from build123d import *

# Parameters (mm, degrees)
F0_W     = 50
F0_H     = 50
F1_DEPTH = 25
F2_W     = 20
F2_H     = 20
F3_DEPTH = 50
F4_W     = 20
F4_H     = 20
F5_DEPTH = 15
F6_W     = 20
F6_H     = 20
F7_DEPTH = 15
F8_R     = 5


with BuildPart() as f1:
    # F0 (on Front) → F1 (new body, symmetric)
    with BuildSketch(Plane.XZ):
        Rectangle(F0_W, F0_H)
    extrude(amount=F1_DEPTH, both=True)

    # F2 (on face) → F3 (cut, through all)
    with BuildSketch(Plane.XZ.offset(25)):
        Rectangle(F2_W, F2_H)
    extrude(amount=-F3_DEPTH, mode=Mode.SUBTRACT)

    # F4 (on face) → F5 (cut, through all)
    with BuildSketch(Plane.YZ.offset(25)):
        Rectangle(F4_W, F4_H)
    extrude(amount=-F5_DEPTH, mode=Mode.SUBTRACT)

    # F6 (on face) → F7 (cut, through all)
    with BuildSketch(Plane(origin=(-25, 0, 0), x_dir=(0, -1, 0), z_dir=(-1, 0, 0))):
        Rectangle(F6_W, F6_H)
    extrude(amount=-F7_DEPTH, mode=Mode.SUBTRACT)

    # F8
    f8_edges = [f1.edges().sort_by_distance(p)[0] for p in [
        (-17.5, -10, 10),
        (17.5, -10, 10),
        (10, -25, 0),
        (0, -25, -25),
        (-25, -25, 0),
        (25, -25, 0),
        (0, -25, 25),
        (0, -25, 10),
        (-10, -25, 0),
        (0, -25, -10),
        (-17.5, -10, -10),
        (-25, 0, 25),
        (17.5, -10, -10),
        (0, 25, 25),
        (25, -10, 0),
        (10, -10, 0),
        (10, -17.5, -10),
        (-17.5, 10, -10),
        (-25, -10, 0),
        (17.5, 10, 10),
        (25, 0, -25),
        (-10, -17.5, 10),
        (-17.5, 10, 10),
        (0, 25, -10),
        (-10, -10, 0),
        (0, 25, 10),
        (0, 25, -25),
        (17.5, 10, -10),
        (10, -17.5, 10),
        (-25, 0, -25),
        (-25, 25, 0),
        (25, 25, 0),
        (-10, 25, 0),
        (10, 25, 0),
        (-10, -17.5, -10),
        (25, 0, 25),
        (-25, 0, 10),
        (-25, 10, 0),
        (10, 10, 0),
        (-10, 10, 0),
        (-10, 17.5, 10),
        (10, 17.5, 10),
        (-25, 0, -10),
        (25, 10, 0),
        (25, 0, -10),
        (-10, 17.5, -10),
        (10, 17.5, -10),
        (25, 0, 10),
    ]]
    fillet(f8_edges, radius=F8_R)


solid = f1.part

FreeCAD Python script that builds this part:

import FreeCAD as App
import Part
import Sketcher

V = App.Vector
Q = App.Units.Quantity

doc = App.newDocument("Part")
body = doc.addObject("PartDesign::Body", "Body")

# Sketch on XZ plane
sketch1 = body.newObject("Sketcher::SketchObject", "Sketch")
sketch1.AttachmentSupport = (doc.getObject("XZ_Plane"), [""])
sketch1.MapMode = "FlatFace"
sketch1.addGeometry([
    Part.LineSegment(V(-25, 25, 0), V(-25, -25, 0)),
    Part.LineSegment(V(-25, -25, 0), V(25, -25, 0)),
    Part.LineSegment(V(25, -25, 0), V(25, 25, 0)),
    Part.LineSegment(V(25, 25, 0), V(-25, 25, 0)),
], False)
sketch1.addConstraint([
    Sketcher.Constraint("Coincident", 0, 2, 1, 1),
    Sketcher.Constraint("Coincident", 1, 2, 2, 1),
    Sketcher.Constraint("Coincident", 2, 2, 3, 1),
    Sketcher.Constraint("Coincident", 3, 2, 0, 1),
    Sketcher.Constraint("Vertical", 0),
    Sketcher.Constraint("Horizontal", 1),
    Sketcher.Constraint("Vertical", 2),
    Sketcher.Constraint("Horizontal", 3),
    Sketcher.Constraint("Symmetric", 0, 2, 2, 2, -1, 1),
    Sketcher.Constraint("Equal", 3, 0),
    Sketcher.Constraint("DistanceX", 1, 1, 1, 2, Q("50 mm")),
])
pad1 = body.newObject("PartDesign::Pad", "Pad")
pad1.Profile = sketch1
pad1.Length = 50
pad1.Midplane = True

# Sketch on XZ plane
sketch2 = body.newObject("Sketcher::SketchObject", "Sketch001")
sketch2.AttachmentSupport = (doc.getObject("XZ_Plane"), [""])
sketch2.MapMode = "FlatFace"
sketch2.AttachmentOffset = App.Placement(V(0, 0, 25), App.Rotation())
sketch2.addGeometry([
    Part.LineSegment(V(-10, 10, 0), V(-10, -10, 0)),
    Part.LineSegment(V(-10, -10, 0), V(10, -10, 0)),
    Part.LineSegment(V(10, -10, 0), V(10, 10, 0)),
    Part.LineSegment(V(10, 10, 0), V(-10, 10, 0)),
], False)
sketch2.addConstraint([
    Sketcher.Constraint("Coincident", 0, 2, 1, 1),
    Sketcher.Constraint("Coincident", 1, 2, 2, 1),
    Sketcher.Constraint("Coincident", 2, 2, 3, 1),
    Sketcher.Constraint("Coincident", 3, 2, 0, 1),
    Sketcher.Constraint("Vertical", 0),
    Sketcher.Constraint("Horizontal", 1),
    Sketcher.Constraint("Vertical", 2),
    Sketcher.Constraint("Horizontal", 3),
    Sketcher.Constraint("Symmetric", 0, 2, 2, 2, -1, 1),
    Sketcher.Constraint("Equal", 3, 0),
    Sketcher.Constraint("DistanceX", 1, 1, 1, 2, Q("20 mm")),
])
pocket1 = body.newObject("PartDesign::Pocket", "Pocket")
pocket1.Profile = sketch2
pocket1.Type = "ThroughAll"

# Sketch on YZ plane
sketch3 = body.newObject("Sketcher::SketchObject", "Sketch002")
sketch3.AttachmentSupport = (doc.getObject("YZ_Plane"), [""])
sketch3.MapMode = "FlatFace"
sketch3.AttachmentOffset = App.Placement(V(0, 0, 25), App.Rotation())
sketch3.addGeometry([
    Part.LineSegment(V(-10, 10, 0), V(-10, -10, 0)),
    Part.LineSegment(V(-10, -10, 0), V(10, -10, 0)),
    Part.LineSegment(V(10, -10, 0), V(10, 10, 0)),
    Part.LineSegment(V(10, 10, 0), V(-10, 10, 0)),
], False)
sketch3.addConstraint([
    Sketcher.Constraint("Coincident", 0, 2, 1, 1),
    Sketcher.Constraint("Coincident", 1, 2, 2, 1),
    Sketcher.Constraint("Coincident", 2, 2, 3, 1),
    Sketcher.Constraint("Coincident", 3, 2, 0, 1),
    Sketcher.Constraint("Vertical", 0),
    Sketcher.Constraint("Horizontal", 1),
    Sketcher.Constraint("Vertical", 2),
    Sketcher.Constraint("Horizontal", 3),
    Sketcher.Constraint("Symmetric", 0, 2, 2, 2, -1, 1),
    Sketcher.Constraint("Equal", 3, 0),
    Sketcher.Constraint("DistanceX", 1, 1, 1, 2, Q("20 mm")),
])
pocket2 = body.newObject("PartDesign::Pocket", "Pocket001")
pocket2.Profile = sketch3
pocket2.Length = 15

# Sketch on YZ plane
sketch4 = body.newObject("Sketcher::SketchObject", "Sketch003")
sketch4.AttachmentSupport = (doc.getObject("YZ_Plane"), [""])
sketch4.MapMode = "FlatFace"
sketch4.AttachmentOffset = App.Placement(V(0, 0, -25), App.Rotation())
sketch4.addGeometry([
    Part.LineSegment(V(10, 10, 0), V(10, -10, 0)),
    Part.LineSegment(V(10, -10, 0), V(-10, -10, 0)),
    Part.LineSegment(V(-10, -10, 0), V(-10, 10, 0)),
    Part.LineSegment(V(-10, 10, 0), V(10, 10, 0)),
], False)
sketch4.addConstraint([
    Sketcher.Constraint("Coincident", 0, 2, 1, 1),
    Sketcher.Constraint("Coincident", 1, 2, 2, 1),
    Sketcher.Constraint("Coincident", 2, 2, 3, 1),
    Sketcher.Constraint("Coincident", 3, 2, 0, 1),
    Sketcher.Constraint("Vertical", 0),
    Sketcher.Constraint("Horizontal", 1),
    Sketcher.Constraint("Vertical", 2),
    Sketcher.Constraint("Horizontal", 3),
    Sketcher.Constraint("Symmetric", 0, 2, 2, 2, -1, 1),
    Sketcher.Constraint("Equal", 3, 0),
    Sketcher.Constraint("DistanceX", 1, 2, 1, 1, Q("20 mm")),
])
pocket3 = body.newObject("PartDesign::Pocket", "Pocket002")
pocket3.Profile = sketch4
pocket3.Type = "ThroughAll"
pocket3.Reversed = True
doc.recompute()

fillet = body.newObject("PartDesign::Fillet", "Fillet")
fillet.Base = (pocket3, ["Edge1"])
fillet.UseAllEdges = True
fillet.Radius = 5

doc.recompute()
